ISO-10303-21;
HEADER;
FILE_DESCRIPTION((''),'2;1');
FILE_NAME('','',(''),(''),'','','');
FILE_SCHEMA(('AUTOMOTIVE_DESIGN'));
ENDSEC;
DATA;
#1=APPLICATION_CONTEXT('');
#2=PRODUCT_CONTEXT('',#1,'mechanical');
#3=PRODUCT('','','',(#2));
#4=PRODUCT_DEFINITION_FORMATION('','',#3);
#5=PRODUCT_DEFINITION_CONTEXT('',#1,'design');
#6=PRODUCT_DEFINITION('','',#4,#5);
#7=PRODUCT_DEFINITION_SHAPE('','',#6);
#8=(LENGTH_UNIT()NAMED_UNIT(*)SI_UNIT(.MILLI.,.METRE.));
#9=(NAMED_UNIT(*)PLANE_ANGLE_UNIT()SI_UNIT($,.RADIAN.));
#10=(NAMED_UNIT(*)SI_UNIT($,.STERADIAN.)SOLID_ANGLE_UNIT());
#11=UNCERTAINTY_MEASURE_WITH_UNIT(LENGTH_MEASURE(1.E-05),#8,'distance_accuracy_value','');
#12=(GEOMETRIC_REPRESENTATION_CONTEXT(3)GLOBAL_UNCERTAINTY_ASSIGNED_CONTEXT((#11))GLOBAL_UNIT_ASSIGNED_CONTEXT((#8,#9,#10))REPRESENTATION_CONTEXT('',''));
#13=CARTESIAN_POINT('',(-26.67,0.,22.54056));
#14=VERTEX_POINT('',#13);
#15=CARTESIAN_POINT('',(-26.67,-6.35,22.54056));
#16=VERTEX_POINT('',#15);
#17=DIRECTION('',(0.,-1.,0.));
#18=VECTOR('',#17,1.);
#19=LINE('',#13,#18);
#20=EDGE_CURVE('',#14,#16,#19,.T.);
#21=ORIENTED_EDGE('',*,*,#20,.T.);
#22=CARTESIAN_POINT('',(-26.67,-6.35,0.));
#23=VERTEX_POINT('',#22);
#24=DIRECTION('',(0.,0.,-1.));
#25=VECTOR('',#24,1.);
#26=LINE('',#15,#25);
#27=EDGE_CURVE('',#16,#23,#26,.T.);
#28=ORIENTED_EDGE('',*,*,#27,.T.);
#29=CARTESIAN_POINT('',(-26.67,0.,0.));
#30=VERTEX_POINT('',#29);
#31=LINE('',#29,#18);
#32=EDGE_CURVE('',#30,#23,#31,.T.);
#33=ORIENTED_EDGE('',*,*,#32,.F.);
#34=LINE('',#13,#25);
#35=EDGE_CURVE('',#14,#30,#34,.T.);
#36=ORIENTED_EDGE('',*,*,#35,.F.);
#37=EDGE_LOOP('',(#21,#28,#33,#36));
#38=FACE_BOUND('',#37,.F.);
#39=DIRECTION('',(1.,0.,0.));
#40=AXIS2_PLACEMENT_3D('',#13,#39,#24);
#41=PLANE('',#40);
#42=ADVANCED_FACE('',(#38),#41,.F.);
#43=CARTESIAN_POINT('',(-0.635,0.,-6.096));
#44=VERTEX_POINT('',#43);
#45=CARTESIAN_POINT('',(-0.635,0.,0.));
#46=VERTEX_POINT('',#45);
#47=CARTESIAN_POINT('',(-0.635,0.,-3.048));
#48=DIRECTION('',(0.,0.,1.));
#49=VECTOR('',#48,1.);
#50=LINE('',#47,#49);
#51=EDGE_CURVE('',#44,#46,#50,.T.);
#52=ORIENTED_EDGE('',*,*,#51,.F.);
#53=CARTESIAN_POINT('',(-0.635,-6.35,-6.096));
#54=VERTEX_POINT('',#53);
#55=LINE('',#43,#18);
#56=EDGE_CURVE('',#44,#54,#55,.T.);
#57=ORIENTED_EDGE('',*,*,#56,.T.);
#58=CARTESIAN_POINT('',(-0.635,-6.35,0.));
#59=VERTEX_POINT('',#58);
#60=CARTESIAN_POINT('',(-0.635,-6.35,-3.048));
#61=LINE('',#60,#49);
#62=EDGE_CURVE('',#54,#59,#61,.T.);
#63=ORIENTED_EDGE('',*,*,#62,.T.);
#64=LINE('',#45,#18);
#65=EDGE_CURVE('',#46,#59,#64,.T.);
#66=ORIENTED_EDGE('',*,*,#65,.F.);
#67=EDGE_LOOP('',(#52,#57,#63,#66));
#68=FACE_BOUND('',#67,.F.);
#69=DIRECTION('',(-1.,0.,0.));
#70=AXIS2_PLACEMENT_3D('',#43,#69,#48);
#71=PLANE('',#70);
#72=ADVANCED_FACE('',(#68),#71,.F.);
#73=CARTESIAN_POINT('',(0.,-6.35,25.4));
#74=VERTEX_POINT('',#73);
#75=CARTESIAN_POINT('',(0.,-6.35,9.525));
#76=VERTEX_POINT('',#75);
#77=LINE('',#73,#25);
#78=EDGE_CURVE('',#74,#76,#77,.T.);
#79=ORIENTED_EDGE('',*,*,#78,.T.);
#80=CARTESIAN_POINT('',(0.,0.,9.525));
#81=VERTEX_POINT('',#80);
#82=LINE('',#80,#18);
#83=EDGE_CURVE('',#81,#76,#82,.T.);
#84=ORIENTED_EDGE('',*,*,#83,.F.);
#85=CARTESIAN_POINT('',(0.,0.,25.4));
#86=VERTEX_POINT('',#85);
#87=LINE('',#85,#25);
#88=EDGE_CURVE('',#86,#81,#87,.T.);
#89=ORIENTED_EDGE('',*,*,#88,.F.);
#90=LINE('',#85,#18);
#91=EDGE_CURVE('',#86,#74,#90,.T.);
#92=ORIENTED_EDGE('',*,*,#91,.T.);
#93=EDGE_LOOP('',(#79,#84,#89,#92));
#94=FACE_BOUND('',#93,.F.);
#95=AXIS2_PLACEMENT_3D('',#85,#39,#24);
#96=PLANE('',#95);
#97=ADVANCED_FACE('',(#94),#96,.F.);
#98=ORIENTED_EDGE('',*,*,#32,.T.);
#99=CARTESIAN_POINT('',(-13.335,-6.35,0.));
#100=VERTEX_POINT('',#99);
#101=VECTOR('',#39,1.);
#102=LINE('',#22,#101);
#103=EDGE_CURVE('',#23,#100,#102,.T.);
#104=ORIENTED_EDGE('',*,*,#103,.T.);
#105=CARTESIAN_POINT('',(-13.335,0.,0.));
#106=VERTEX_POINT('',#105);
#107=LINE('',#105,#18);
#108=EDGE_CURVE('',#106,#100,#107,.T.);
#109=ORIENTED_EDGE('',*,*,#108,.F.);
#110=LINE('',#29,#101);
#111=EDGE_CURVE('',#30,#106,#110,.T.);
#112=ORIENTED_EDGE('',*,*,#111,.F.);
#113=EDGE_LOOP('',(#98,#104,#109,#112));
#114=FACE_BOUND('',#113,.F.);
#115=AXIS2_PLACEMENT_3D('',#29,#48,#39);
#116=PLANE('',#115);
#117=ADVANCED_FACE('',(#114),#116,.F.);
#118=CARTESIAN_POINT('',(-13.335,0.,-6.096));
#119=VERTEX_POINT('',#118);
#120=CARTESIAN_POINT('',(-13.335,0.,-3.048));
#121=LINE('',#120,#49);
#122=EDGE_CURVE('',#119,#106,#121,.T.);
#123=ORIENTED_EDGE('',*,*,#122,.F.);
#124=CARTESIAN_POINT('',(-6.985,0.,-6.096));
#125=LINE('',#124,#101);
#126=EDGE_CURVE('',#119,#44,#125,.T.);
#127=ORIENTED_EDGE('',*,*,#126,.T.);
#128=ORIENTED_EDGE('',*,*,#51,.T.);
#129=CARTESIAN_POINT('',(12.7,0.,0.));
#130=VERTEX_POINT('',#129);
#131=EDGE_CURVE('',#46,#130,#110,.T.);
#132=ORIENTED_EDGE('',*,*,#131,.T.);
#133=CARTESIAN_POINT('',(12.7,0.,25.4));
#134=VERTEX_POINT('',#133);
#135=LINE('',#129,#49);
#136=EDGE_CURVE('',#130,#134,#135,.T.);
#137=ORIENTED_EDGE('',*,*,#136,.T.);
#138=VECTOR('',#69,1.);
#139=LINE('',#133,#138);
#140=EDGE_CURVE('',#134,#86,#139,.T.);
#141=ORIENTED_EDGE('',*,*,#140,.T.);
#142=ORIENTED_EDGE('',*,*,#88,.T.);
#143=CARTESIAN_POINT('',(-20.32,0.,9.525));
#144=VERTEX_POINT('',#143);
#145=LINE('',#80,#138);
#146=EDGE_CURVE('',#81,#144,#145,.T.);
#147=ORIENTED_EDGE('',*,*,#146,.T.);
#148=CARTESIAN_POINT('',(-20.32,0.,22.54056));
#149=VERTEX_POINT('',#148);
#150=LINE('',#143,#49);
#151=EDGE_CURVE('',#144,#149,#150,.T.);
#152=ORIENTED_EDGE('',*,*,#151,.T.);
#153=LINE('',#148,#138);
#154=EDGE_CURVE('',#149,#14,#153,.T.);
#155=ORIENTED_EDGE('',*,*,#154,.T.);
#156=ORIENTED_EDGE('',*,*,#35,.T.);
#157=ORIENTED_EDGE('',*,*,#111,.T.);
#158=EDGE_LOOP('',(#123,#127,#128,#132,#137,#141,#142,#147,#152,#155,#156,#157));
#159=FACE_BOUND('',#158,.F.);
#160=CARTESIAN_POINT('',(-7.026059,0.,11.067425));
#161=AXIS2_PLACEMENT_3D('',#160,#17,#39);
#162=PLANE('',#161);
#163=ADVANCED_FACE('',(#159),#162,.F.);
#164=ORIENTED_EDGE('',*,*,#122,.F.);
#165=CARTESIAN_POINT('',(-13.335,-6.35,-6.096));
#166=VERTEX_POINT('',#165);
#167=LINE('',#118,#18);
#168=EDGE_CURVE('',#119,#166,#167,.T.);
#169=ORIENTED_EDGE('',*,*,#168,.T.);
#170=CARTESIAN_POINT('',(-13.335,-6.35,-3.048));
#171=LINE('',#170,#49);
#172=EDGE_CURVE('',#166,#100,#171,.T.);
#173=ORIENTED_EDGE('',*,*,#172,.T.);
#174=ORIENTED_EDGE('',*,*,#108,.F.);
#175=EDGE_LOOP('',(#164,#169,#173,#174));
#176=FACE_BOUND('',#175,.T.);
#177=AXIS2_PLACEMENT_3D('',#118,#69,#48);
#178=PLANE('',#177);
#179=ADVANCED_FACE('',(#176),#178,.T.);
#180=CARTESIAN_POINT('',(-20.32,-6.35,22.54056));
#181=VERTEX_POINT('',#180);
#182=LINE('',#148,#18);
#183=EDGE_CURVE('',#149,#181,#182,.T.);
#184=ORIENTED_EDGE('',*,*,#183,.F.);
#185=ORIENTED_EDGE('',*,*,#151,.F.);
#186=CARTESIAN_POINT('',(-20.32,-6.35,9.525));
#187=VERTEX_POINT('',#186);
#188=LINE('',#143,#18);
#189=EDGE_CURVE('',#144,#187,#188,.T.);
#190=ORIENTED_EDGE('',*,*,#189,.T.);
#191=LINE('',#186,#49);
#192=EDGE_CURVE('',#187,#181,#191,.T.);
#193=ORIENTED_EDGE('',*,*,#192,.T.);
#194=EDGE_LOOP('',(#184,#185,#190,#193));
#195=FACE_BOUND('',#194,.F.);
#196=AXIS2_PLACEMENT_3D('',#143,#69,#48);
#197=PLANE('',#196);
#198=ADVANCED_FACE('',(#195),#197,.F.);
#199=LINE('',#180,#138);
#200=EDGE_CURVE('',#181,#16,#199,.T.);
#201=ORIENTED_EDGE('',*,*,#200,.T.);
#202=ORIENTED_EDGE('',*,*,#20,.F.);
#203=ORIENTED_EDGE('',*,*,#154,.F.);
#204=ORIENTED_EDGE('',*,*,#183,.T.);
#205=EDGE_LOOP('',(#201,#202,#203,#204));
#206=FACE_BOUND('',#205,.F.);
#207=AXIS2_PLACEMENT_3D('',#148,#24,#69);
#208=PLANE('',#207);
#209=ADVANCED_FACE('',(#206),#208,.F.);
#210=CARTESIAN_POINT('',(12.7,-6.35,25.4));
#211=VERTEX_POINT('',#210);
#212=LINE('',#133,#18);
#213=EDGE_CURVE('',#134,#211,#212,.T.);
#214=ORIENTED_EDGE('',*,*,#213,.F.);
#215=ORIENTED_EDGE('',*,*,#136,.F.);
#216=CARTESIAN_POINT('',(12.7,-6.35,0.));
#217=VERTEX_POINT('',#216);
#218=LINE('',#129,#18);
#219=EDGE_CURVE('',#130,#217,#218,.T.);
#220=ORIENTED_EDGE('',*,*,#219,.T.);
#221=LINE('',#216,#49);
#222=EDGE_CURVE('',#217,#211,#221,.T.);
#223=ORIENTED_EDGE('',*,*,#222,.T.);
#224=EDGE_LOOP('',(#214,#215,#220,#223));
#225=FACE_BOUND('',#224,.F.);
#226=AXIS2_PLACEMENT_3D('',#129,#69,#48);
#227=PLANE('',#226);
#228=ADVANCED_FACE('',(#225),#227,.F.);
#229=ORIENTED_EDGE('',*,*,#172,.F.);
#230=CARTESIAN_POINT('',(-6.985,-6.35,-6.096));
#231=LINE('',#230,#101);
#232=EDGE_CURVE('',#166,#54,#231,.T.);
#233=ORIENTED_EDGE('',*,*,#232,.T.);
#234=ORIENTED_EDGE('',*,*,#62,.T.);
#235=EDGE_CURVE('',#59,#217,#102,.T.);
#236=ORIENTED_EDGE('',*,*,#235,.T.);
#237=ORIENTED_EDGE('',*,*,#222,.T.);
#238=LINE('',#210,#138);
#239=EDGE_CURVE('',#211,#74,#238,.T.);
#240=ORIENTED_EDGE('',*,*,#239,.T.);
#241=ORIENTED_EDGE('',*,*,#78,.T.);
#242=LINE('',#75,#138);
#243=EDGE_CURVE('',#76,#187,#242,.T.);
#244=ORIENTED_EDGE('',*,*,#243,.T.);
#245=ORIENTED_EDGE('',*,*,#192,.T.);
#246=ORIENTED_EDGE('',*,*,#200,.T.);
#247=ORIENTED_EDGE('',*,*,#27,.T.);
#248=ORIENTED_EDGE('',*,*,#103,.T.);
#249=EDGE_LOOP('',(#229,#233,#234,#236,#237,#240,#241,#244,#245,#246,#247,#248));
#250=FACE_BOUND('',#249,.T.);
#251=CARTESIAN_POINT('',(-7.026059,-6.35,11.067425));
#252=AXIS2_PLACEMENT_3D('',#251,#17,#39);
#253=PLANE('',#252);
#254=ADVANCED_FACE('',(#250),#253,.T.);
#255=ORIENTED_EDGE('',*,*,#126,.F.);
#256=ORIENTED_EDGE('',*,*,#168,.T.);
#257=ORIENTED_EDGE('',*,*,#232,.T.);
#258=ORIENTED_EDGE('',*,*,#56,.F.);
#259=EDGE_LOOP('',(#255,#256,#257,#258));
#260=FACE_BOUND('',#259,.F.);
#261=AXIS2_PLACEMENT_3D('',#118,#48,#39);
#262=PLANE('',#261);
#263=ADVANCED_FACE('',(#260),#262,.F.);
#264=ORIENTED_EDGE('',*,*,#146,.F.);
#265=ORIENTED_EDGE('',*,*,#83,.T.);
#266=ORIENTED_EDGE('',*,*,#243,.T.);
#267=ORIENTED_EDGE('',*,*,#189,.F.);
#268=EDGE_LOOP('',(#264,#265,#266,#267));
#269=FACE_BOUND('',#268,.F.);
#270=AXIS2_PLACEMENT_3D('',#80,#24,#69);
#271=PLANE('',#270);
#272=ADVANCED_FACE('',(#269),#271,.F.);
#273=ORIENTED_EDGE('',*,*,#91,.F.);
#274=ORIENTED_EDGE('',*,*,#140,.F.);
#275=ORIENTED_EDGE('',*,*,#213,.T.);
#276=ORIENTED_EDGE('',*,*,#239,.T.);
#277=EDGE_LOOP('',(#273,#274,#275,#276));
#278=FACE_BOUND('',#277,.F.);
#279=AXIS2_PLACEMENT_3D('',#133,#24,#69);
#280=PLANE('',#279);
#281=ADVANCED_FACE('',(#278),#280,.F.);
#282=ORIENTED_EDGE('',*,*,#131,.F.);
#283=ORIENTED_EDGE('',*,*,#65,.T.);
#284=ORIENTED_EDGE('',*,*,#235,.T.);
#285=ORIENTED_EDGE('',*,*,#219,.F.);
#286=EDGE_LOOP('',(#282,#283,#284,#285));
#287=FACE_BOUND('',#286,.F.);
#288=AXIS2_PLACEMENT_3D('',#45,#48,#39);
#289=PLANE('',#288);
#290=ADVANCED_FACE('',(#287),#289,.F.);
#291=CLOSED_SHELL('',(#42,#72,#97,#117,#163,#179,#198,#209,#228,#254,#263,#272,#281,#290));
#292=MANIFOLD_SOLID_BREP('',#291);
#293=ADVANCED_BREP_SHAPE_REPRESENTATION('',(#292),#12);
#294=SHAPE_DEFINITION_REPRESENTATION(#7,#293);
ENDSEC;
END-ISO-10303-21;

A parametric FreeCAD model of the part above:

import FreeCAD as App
import Part
import Sketcher
Q = App.Units.Quantity


def add_polygon(sketch, points):
    """Adds a closed chain of lines whose ends are joined by coincident constraints."""
    first, n = sketch.GeometryCount, len(points)
    for a, b in zip(points, points[1:] + points[:1]):
        sketch.addGeometry(Part.LineSegment(App.Vector(*a, 0), App.Vector(*b, 0)), False)
    for i in range(n):
        sketch.addConstraint(Sketcher.Constraint("Coincident", first + i, 2, first + (i + 1) % n, 1))

doc = App.newDocument("Part")
body = doc.addObject("PartDesign::Body", "Body")

# Sketch on XZ plane
sketch1 = body.newObject("Sketcher::SketchObject", "Sketch")
sketch1.AttachmentSupport = (doc.getObject("XZ_Plane"), [""])
sketch1.MapMode = "FlatFace"
add_polygon(sketch1, [(12.7, 25.4), (0, 25.4), (0, 9.525), (-20.32, 9.525), (-20.32, 22.54056), (-26.67, 22.54056), (-26.67, 0), (-13.335, 0), (-13.335, -6.096), (-0.635, -6.096), (-0.635, 0), (12.7, 0)])  # lines 0-11
sketch1.addConstraint([
    Sketcher.Constraint("Horizontal", 0),
    Sketcher.Constraint("Vertical", 1),
    Sketcher.Constraint("Horizontal", 2),
    Sketcher.Constraint("Vertical", 3),
    Sketcher.Constraint("Horizontal", 4),
    Sketcher.Constraint("Vertical", 5),
    Sketcher.Constraint("Horizontal", 6),
    Sketcher.Constraint("Vertical", 7),
    Sketcher.Constraint("Horizontal", 8),
    Sketcher.Constraint("Vertical", 9),
    Sketcher.Constraint("Horizontal", 10),
    Sketcher.Constraint("Vertical", 11),
    Sketcher.Constraint("PointOnObject", 0, 2, -2),
    Sketcher.Constraint("PointOnObject", 5, 2, -1),
    Sketcher.Constraint("PointOnObject", 9, 2, -1),
    Sketcher.Constraint("Equal", 0, 8),
    Sketcher.Constraint("Equal", 6, 10),
    Sketcher.Constraint("DistanceY", 11, 1, 11, 2, Q("1 in")),
    Sketcher.Constraint("DistanceX", 0, 2, 0, 1, Q("0.5 in")),
    Sketcher.Constraint("DistanceX", 2, 2, 2, 1, Q("0.8 in")),
    Sketcher.Constraint("DistanceX", 4, 2, 4, 1, Q("0.25 in")),
    Sketcher.Constraint("DistanceY", 7, 2, 7, 1, Q("0.24 in")),
    Sketcher.Constraint("DistanceY", 1, 2, 1, 1, Q("0.625 in")),
    Sketcher.Constraint("DistanceY", 3, 1, 3, 2, Q("13.01556 mm")),
])
pad1 = body.newObject("PartDesign::Pad", "Pad")
pad1.Profile = sketch1
pad1.Length = Q("0.25 in")

doc.recompute()
